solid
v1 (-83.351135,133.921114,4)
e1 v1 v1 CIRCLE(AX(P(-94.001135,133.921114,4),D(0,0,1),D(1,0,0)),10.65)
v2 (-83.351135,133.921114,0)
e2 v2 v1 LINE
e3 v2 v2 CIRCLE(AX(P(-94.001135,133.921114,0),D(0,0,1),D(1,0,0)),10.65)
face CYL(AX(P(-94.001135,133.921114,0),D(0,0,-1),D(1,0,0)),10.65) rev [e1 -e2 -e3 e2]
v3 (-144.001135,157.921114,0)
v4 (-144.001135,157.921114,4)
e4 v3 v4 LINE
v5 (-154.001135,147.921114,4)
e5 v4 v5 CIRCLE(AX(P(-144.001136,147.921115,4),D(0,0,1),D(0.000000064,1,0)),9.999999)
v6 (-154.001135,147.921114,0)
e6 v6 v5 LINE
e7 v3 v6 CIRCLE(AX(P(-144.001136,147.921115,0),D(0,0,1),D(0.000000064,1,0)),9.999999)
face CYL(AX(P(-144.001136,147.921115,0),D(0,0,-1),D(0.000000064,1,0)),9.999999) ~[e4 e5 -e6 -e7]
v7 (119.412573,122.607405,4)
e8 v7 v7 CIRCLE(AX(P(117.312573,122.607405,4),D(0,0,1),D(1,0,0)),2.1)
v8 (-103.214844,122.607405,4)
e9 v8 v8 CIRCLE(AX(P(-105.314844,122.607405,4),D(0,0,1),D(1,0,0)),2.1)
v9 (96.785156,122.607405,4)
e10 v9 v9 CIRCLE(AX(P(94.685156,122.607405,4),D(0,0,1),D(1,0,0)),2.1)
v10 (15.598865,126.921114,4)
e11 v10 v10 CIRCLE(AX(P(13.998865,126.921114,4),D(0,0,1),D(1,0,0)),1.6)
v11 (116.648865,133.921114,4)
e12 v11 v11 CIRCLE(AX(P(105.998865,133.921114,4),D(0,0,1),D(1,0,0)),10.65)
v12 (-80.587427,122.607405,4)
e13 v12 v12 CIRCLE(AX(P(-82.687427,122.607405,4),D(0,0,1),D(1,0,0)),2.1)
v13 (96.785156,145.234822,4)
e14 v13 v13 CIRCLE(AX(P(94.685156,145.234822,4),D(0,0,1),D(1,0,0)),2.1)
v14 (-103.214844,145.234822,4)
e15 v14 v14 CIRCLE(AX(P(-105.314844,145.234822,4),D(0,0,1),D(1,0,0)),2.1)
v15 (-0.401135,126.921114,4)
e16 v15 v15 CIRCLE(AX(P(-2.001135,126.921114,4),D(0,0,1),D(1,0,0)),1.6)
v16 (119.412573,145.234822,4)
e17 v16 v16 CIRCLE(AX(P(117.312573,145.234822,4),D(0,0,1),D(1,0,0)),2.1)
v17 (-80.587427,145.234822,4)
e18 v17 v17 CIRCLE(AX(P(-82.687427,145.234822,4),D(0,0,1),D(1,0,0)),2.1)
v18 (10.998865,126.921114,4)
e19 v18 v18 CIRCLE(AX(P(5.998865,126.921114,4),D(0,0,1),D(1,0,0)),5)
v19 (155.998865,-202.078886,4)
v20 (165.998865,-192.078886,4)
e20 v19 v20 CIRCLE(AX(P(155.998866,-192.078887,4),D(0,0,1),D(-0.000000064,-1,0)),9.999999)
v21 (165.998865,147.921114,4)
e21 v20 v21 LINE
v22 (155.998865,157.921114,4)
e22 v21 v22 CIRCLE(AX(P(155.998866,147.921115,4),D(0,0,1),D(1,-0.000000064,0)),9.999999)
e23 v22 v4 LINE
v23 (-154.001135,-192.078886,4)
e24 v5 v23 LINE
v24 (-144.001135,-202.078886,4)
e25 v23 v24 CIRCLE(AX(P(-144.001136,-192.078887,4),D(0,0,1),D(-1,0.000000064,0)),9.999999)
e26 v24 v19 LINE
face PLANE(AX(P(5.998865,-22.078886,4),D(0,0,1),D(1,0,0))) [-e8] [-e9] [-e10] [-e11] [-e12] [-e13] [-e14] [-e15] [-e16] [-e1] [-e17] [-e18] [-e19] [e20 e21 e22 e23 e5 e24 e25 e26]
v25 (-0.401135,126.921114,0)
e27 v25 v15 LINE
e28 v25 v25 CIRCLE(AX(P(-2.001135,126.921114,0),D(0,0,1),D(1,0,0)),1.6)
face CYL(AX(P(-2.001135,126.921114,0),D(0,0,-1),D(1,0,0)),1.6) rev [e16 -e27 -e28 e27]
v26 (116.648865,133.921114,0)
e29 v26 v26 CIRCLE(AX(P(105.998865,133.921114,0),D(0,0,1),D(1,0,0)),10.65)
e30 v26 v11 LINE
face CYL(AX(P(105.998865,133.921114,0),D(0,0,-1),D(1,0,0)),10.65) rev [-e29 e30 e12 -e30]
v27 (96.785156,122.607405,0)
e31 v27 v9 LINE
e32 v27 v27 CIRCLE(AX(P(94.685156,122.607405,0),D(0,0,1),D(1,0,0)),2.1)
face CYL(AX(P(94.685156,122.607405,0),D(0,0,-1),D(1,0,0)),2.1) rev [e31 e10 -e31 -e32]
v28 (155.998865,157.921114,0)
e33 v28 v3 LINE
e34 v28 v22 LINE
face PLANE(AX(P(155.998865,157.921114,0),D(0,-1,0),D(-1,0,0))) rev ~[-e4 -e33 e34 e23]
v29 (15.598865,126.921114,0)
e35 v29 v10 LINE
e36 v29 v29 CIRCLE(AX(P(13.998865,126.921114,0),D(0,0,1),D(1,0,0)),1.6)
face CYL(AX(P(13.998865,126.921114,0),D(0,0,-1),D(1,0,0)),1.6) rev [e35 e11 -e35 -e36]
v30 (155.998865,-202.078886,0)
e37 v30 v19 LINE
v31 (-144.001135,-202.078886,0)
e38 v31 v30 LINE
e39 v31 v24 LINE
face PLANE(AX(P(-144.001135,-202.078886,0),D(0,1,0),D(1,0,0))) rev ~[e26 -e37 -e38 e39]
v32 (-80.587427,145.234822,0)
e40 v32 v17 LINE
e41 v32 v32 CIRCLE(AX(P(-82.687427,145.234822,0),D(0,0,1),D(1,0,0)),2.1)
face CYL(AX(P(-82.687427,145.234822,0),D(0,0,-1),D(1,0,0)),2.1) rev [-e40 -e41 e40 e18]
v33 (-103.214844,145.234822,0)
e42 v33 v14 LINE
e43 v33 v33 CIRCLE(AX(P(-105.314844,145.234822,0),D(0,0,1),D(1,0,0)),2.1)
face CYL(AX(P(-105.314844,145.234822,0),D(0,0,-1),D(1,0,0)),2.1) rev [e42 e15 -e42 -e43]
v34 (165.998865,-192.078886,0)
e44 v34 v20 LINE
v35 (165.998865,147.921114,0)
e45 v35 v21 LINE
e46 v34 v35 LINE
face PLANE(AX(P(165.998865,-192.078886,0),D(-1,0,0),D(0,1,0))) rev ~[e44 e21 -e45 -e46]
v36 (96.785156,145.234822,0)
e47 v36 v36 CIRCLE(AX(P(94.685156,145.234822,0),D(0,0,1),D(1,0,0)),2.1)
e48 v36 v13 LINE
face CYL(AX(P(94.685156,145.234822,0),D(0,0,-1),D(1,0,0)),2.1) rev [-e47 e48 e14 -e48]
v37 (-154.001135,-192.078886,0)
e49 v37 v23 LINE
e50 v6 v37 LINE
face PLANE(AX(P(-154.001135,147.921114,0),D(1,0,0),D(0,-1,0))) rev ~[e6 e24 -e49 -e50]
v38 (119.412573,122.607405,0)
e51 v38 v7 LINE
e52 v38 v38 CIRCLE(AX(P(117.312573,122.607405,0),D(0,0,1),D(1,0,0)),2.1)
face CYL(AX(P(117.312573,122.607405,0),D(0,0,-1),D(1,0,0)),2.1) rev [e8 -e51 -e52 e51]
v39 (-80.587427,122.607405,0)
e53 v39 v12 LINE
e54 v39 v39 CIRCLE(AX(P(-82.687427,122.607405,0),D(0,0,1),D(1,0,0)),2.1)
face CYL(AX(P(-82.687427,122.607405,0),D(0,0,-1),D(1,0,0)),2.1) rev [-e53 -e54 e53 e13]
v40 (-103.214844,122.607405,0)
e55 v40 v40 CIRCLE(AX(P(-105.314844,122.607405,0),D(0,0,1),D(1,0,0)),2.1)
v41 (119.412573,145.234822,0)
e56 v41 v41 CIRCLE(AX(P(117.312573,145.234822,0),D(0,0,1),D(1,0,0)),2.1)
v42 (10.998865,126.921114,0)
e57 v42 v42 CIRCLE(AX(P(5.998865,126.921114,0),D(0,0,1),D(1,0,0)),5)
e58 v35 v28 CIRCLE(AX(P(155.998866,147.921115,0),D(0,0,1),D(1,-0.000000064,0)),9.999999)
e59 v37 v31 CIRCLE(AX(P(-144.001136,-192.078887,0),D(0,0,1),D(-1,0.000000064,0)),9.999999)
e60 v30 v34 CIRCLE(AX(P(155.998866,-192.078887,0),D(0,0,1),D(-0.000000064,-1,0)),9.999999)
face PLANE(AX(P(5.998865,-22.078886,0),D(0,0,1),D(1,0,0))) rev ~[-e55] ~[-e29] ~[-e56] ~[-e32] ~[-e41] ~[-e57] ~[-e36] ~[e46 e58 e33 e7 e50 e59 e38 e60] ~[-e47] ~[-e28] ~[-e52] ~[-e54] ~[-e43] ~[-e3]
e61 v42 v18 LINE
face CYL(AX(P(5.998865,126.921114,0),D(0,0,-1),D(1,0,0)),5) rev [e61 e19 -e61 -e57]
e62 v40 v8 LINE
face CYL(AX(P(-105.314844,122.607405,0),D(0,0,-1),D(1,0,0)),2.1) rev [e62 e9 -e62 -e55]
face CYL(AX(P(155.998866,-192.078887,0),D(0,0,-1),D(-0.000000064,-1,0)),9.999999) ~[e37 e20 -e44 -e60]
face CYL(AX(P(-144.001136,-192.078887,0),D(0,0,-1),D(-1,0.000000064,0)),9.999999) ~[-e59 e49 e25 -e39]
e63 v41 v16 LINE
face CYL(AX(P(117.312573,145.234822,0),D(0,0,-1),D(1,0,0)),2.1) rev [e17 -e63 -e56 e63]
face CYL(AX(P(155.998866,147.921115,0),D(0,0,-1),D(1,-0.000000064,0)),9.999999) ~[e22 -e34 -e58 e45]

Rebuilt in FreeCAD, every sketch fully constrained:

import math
import FreeCAD as App
import Part
import Sketcher

V = App.Vector

doc = App.newDocument("Part")
body = doc.addObject("PartDesign::Body", "Body")

# Sketch on XY plane
sketch1 = body.newObject("Sketcher::SketchObject", "Sketch")
sketch1.AttachmentSupport = (doc.getObject("XY_Plane"), [""])
sketch1.MapMode = "FlatFace"
sketch1.addGeometry([
    Part.LineSegment(V(155.998865, 157.921114, 0), V(-144.001135, 157.921114, 0)),  # 0
    Part.ArcOfCircle(Part.Circle(V(-144.001136, 147.921115, 0), V(0, 0, 1), 9.999999), math.radians(89.999996), math.radians(180.000004)),  # 1
    Part.LineSegment(V(-154.001135, 147.921114, 0), V(-154.001135, -192.078886, 0)),  # 2
    Part.ArcOfCircle(Part.Circle(V(-144.001136, -192.078887, 0), V(0, 0, 1), 9.999999), math.radians(179.999996), math.radians(270.000004)),  # 3
    Part.LineSegment(V(-144.001135, -202.078886, 0), V(155.998865, -202.078886, 0)),  # 4
    Part.ArcOfCircle(Part.Circle(V(155.998866, -192.078887, 0), V(0, 0, 1), 9.999999), math.radians(-90.000004), math.radians(0.000004)),  # 5
    Part.LineSegment(V(165.998865, -192.078886, 0), V(165.998865, 147.921114, 0)),  # 6
    Part.ArcOfCircle(Part.Circle(V(155.998866, 147.921115, 0), V(0, 0, 1), 9.999999), math.radians(-0.000004), math.radians(90.000004)),  # 7
    Part.Circle(V(-105.314844, 122.607405, 0), V(0, 0, 1), 2.1),  # 8
    Part.Circle(V(-82.687427, 122.607405, 0), V(0, 0, 1), 2.1),  # 9
    Part.Circle(V(-2.001135, 126.921114, 0), V(0, 0, 1), 1.6),  # 10
    Part.Circle(V(5.998865, 126.921114, 0), V(0, 0, 1), 5),  # 11
    Part.Circle(V(13.998865, 126.921114, 0), V(0, 0, 1), 1.6),  # 12
    Part.Circle(V(94.685156, 122.607405, 0), V(0, 0, 1), 2.1),  # 13
    Part.Circle(V(117.312573, 122.607405, 0), V(0, 0, 1), 2.1),  # 14
    Part.Circle(V(-94.001135, 133.921114, 0), V(0, 0, 1), 10.65),  # 15
    Part.Circle(V(-105.314844, 145.234822, 0), V(0, 0, 1), 2.1),  # 16
    Part.Circle(V(-82.687427, 145.234822, 0), V(0, 0, 1), 2.1),  # 17
    Part.Circle(V(105.998865, 133.921114, 0), V(0, 0, 1), 10.65),  # 18
    Part.Circle(V(94.685156, 145.234822, 0), V(0, 0, 1), 2.1),  # 19
    Part.Circle(V(117.312573, 145.234822, 0), V(0, 0, 1), 2.1),  # 20
], False)
sketch1.addConstraint([
    Sketcher.Constraint("Tangent", 0, 2, 1, 1),
    Sketcher.Constraint("Tangent", 1, 2, 2, 1),
    Sketcher.Constraint("Tangent", 2, 2, 3, 1),
    Sketcher.Constraint("Tangent", 3, 2, 4, 1),
    Sketcher.Constraint("Tangent", 4, 2, 5, 1),
    Sketcher.Constraint("Tangent", 5, 2, 6, 1),
    Sketcher.Constraint("Tangent", 6, 2, 7, 1),
    Sketcher.Constraint("Tangent", 7, 2, 0, 1),
    Sketcher.Constraint("Horizontal", 0),
    Sketcher.Constraint("Vertical", 2),
    Sketcher.Constraint("Horizontal", 4),
    Sketcher.Constraint("Vertical", 6),
    Sketcher.Constraint("Equal", 1, 3),
    Sketcher.Constraint("Equal", 3, 5),
    Sketcher.Constraint("Equal", 5, 7),
    Sketcher.Constraint("Equal", 8, 9),
    Sketcher.Constraint("Equal", 10, 12),
    Sketcher.Constraint("Equal", 9, 13),
    Sketcher.Constraint("Equal", 13, 14),
    Sketcher.Constraint("Equal", 14, 16),
    Sketcher.Constraint("Equal", 16, 17),
    Sketcher.Constraint("Equal", 15, 18),
    Sketcher.Constraint("Equal", 17, 19),
    Sketcher.Constraint("Equal", 19, 20),
    Sketcher.Constraint("Horizontal", 8, 3, 9, 3),
    Sketcher.Constraint("Horizontal", 10, 3, 11, 3),
    Sketcher.Constraint("Horizontal", 11, 3, 12, 3),
    Sketcher.Constraint("Horizontal", 9, 3, 13, 3),
    Sketcher.Constraint("Horizontal", 13, 3, 14, 3),
    Sketcher.Constraint("Horizontal", 16, 3, 17, 3),
    Sketcher.Constraint("Horizontal", 15, 3, 18, 3),
    Sketcher.Constraint("Horizontal", 17, 3, 19, 3),
    Sketcher.Constraint("Horizontal", 19, 3, 20, 3),
    Sketcher.Constraint("Vertical", 8, 3, 16, 3),
    Sketcher.Constraint("Vertical", 9, 3, 17, 3),
    Sketcher.Constraint("Vertical", 13, 3, 19, 3),
    Sketcher.Constraint("Vertical", 14, 3, 20, 3),
    Sketcher.Constraint("Diameter", 11, 10.0),
    Sketcher.Constraint("Radius", 1, 9.999999),
    Sketcher.Constraint("Diameter", 8, 4.2),
    Sketcher.Constraint("Diameter", 10, 3.2),
    Sketcher.Constraint("Diameter", 15, 21.3),
    Sketcher.Constraint("DistanceX", 0, 2, 0, 1, 300.0),
    Sketcher.Constraint("DistanceY", 2, 2, 2, 1, 340.0),
    Sketcher.Constraint("DistanceX", 1, 3, 10, 3, 142.000001),
    Sketcher.Constraint("DistanceY", 10, 3, 1, 3, 21.000001),
    Sketcher.Constraint("DistanceX", 10, 3, 11, 3, 8.0),
    Sketcher.Constraint("DistanceX", 11, 3, 12, 3, 8.0),
    Sketcher.Constraint("DistanceX", 1, 3, 15, 3, 50.000001),
    Sketcher.Constraint("DistanceY", 15, 3, 1, 3, 14.000001),
    Sketcher.Constraint("DistanceX", 18, 3, 7, 3, 50.000001),
    Sketcher.Constraint("DistanceY", -1, 1, 16, 3, 145.234822),
    Sketcher.Constraint("DistanceX", 1, 3, 8, 3, 38.686292),
    Sketcher.Constraint("DistanceY", 8, 3, 1, 3, 25.31371),
    Sketcher.Constraint("DistanceX", 1, 3, 9, 3, 61.313709),
    Sketcher.Constraint("DistanceX", 13, 3, 7, 3, 61.31371),
    Sketcher.Constraint("DistanceX", 12, 3, 14, 3, 103.313708),
    Sketcher.Constraint("DistanceY", 15, 3, 16, 3, 11.313708),
    Sketcher.Constraint("DistanceX", 1, 3, -1, 1, 144.001136),
])
pad1 = body.newObject("PartDesign::Pad", "Pad")
pad1.Profile = sketch1
pad1.Length = 4

doc.recompute()
